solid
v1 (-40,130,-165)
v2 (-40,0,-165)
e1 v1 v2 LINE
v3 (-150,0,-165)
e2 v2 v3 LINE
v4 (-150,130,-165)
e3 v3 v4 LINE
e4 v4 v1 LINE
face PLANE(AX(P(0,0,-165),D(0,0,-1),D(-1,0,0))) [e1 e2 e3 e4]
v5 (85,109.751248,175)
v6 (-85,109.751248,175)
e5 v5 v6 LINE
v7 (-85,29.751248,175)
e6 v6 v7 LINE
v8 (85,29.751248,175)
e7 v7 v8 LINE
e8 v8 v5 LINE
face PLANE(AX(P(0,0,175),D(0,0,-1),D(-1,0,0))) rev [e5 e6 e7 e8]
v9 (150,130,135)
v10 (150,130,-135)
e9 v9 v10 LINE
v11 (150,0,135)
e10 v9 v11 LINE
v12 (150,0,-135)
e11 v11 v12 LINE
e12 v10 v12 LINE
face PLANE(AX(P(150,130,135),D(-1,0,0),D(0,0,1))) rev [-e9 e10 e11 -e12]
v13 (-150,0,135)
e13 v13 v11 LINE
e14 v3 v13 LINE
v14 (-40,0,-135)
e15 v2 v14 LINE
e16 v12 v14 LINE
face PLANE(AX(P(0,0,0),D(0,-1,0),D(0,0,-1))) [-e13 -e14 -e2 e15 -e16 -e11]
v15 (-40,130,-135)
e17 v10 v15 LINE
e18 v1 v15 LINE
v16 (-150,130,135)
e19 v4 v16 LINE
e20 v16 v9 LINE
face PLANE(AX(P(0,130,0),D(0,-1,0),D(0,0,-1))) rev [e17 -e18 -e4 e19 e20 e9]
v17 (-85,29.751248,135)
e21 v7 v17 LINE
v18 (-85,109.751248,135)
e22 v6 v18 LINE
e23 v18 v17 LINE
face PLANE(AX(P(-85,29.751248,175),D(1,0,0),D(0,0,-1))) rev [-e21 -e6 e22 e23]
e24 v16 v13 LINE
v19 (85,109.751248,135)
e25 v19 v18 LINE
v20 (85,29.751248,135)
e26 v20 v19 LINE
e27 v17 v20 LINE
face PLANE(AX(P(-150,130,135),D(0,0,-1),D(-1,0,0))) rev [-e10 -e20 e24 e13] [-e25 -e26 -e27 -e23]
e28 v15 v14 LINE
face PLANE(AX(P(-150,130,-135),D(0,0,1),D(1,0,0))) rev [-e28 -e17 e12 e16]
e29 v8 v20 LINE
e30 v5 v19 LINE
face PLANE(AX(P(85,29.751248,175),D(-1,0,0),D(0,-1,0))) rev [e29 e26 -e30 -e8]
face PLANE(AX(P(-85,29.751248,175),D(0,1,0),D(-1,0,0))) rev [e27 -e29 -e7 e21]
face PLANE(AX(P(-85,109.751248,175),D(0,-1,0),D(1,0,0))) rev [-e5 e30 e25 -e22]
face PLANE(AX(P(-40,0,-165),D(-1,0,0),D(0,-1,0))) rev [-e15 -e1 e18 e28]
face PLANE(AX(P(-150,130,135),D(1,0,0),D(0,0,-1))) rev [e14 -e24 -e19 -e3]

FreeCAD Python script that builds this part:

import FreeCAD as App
import Part
import Sketcher
from FreeCAD import Vector

doc = App.newDocument("Part")
body = doc.addObject("PartDesign::Body", "Body")

# Sketch on XZ plane
sketch1 = body.newObject("Sketcher::SketchObject", "Sketch")
sketch1.AttachmentSupport = (doc.getObject("XZ_Plane"), [""])
sketch1.MapMode = "FlatFace"
sketch1.addGeometry([
    Part.LineSegment(Vector(-150, -135, 0), Vector(-150, 135, 0)),
    Part.LineSegment(Vector(-150, 135, 0), Vector(150, 135, 0)),
    Part.LineSegment(Vector(150, 135, 0), Vector(150, -135, 0)),
    Part.LineSegment(Vector(150, -135, 0), Vector(-150, -135, 0)),
], False)
sketch1.addConstraint([
    Sketcher.Constraint("Coincident", 0, 2, 1, 1),
    Sketcher.Constraint("Coincident", 1, 2, 2, 1),
    Sketcher.Constraint("Coincident", 2, 2, 3, 1),
    Sketcher.Constraint("Coincident", 3, 2, 0, 1),
    Sketcher.Constraint("Vertical", 0),
    Sketcher.Constraint("Horizontal", 1),
    Sketcher.Constraint("Vertical", 2),
    Sketcher.Constraint("Horizontal", 3),
    Sketcher.Constraint("Symmetric", 0, 2, 2, 2, -1, 1),
    Sketcher.Constraint("DistanceX", 1, 1, 1, 2, 300.0),
    Sketcher.Constraint("DistanceY", 0, 1, 0, 2, 270.0),
])
pad1 = body.newObject("PartDesign::Pad", "Pad")
pad1.Profile = sketch1
pad1.Length = 130
pad1.Reversed = True

# Sketch on XY plane
sketch2 = body.newObject("Sketcher::SketchObject", "Sketch001")
sketch2.AttachmentSupport = (doc.getObject("XY_Plane"), [""])
sketch2.MapMode = "FlatFace"
sketch2.AttachmentOffset = App.Placement(Vector(0, 0, -135), App.Rotation())
sketch2.addGeometry([
    Part.LineSegment(Vector(-40, 130, 0), Vector(-40, 0, 0)),
    Part.LineSegment(Vector(-40, 0, 0), Vector(-150, 0, 0)),
    Part.LineSegment(Vector(-150, 0, 0), Vector(-150, 130, 0)),
    Part.LineSegment(Vector(-150, 130, 0), Vector(-40, 130, 0)),
], False)
sketch2.addConstraint([
    Sketcher.Constraint("Coincident", 0, 2, 1, 1),
    Sketcher.Constraint("Coincident", 1, 2, 2, 1),
    Sketcher.Constraint("Coincident", 2, 2, 3, 1),
    Sketcher.Constraint("Coincident", 3, 2, 0, 1),
    Sketcher.Constraint("Vertical", 0),
    Sketcher.Constraint("Horizontal", 1),
    Sketcher.Constraint("Vertical", 2),
    Sketcher.Constraint("Horizontal", 3),
    Sketcher.Constraint("PointOnObject", 0, 2, -1),
    Sketcher.Constraint("DistanceX", 1, 2, 1, 1, 110.0),
    Sketcher.Constraint("DistanceY", 0, 2, 0, 1, 130.0),
    Sketcher.Constraint("DistanceX", 0, 2, -1, 1, 40.0),
])
pad2 = body.newObject("PartDesign::Pad", "Pad001")
pad2.Profile = sketch2
pad2.Length = 30
pad2.Reversed = True

# Sketch on XY plane
sketch3 = body.newObject("Sketcher::SketchObject", "Sketch002")
sketch3.AttachmentSupport = (doc.getObject("XY_Plane"), [""])
sketch3.MapMode = "FlatFace"
sketch3.AttachmentOffset = App.Placement(Vector(0, 0, 135), App.Rotation())
sketch3.addGeometry([
    Part.LineSegment(Vector(-85, 110, 0), Vector(-85, 30, 0)),
    Part.LineSegment(Vector(-85, 30, 0), Vector(85, 30, 0)),
    Part.LineSegment(Vector(85, 30, 0), Vector(85, 110, 0)),
    Part.LineSegment(Vector(85, 110, 0), Vector(-85, 110, 0)),
], False)
sketch3.addConstraint([
    Sketcher.Constraint("Coincident", 0, 2, 1, 1),
    Sketcher.Constraint("Coincident", 1, 2, 2, 1),
    Sketcher.Constraint("Coincident", 2, 2, 3, 1),
    Sketcher.Constraint("Coincident", 3, 2, 0, 1),
    Sketcher.Constraint("Vertical", 0),
    Sketcher.Constraint("Horizontal", 1),
    Sketcher.Constraint("Vertical", 2),
    Sketcher.Constraint("Horizontal", 3),
    Sketcher.Constraint("DistanceX", 1, 1, 1, 2, 170.0),
    Sketcher.Constraint("DistanceY", 0, 2, 0, 1, 80.0),
    Sketcher.Constraint("DistanceX", 0, 2, -1, 1, 85.0),
    Sketcher.Constraint("DistanceY", -1, 1, 0, 2, 29.751248),
])
pad3 = body.newObject("PartDesign::Pad", "Pad002")
pad3.Profile = sketch3
pad3.Length = 40

doc.recompute()
